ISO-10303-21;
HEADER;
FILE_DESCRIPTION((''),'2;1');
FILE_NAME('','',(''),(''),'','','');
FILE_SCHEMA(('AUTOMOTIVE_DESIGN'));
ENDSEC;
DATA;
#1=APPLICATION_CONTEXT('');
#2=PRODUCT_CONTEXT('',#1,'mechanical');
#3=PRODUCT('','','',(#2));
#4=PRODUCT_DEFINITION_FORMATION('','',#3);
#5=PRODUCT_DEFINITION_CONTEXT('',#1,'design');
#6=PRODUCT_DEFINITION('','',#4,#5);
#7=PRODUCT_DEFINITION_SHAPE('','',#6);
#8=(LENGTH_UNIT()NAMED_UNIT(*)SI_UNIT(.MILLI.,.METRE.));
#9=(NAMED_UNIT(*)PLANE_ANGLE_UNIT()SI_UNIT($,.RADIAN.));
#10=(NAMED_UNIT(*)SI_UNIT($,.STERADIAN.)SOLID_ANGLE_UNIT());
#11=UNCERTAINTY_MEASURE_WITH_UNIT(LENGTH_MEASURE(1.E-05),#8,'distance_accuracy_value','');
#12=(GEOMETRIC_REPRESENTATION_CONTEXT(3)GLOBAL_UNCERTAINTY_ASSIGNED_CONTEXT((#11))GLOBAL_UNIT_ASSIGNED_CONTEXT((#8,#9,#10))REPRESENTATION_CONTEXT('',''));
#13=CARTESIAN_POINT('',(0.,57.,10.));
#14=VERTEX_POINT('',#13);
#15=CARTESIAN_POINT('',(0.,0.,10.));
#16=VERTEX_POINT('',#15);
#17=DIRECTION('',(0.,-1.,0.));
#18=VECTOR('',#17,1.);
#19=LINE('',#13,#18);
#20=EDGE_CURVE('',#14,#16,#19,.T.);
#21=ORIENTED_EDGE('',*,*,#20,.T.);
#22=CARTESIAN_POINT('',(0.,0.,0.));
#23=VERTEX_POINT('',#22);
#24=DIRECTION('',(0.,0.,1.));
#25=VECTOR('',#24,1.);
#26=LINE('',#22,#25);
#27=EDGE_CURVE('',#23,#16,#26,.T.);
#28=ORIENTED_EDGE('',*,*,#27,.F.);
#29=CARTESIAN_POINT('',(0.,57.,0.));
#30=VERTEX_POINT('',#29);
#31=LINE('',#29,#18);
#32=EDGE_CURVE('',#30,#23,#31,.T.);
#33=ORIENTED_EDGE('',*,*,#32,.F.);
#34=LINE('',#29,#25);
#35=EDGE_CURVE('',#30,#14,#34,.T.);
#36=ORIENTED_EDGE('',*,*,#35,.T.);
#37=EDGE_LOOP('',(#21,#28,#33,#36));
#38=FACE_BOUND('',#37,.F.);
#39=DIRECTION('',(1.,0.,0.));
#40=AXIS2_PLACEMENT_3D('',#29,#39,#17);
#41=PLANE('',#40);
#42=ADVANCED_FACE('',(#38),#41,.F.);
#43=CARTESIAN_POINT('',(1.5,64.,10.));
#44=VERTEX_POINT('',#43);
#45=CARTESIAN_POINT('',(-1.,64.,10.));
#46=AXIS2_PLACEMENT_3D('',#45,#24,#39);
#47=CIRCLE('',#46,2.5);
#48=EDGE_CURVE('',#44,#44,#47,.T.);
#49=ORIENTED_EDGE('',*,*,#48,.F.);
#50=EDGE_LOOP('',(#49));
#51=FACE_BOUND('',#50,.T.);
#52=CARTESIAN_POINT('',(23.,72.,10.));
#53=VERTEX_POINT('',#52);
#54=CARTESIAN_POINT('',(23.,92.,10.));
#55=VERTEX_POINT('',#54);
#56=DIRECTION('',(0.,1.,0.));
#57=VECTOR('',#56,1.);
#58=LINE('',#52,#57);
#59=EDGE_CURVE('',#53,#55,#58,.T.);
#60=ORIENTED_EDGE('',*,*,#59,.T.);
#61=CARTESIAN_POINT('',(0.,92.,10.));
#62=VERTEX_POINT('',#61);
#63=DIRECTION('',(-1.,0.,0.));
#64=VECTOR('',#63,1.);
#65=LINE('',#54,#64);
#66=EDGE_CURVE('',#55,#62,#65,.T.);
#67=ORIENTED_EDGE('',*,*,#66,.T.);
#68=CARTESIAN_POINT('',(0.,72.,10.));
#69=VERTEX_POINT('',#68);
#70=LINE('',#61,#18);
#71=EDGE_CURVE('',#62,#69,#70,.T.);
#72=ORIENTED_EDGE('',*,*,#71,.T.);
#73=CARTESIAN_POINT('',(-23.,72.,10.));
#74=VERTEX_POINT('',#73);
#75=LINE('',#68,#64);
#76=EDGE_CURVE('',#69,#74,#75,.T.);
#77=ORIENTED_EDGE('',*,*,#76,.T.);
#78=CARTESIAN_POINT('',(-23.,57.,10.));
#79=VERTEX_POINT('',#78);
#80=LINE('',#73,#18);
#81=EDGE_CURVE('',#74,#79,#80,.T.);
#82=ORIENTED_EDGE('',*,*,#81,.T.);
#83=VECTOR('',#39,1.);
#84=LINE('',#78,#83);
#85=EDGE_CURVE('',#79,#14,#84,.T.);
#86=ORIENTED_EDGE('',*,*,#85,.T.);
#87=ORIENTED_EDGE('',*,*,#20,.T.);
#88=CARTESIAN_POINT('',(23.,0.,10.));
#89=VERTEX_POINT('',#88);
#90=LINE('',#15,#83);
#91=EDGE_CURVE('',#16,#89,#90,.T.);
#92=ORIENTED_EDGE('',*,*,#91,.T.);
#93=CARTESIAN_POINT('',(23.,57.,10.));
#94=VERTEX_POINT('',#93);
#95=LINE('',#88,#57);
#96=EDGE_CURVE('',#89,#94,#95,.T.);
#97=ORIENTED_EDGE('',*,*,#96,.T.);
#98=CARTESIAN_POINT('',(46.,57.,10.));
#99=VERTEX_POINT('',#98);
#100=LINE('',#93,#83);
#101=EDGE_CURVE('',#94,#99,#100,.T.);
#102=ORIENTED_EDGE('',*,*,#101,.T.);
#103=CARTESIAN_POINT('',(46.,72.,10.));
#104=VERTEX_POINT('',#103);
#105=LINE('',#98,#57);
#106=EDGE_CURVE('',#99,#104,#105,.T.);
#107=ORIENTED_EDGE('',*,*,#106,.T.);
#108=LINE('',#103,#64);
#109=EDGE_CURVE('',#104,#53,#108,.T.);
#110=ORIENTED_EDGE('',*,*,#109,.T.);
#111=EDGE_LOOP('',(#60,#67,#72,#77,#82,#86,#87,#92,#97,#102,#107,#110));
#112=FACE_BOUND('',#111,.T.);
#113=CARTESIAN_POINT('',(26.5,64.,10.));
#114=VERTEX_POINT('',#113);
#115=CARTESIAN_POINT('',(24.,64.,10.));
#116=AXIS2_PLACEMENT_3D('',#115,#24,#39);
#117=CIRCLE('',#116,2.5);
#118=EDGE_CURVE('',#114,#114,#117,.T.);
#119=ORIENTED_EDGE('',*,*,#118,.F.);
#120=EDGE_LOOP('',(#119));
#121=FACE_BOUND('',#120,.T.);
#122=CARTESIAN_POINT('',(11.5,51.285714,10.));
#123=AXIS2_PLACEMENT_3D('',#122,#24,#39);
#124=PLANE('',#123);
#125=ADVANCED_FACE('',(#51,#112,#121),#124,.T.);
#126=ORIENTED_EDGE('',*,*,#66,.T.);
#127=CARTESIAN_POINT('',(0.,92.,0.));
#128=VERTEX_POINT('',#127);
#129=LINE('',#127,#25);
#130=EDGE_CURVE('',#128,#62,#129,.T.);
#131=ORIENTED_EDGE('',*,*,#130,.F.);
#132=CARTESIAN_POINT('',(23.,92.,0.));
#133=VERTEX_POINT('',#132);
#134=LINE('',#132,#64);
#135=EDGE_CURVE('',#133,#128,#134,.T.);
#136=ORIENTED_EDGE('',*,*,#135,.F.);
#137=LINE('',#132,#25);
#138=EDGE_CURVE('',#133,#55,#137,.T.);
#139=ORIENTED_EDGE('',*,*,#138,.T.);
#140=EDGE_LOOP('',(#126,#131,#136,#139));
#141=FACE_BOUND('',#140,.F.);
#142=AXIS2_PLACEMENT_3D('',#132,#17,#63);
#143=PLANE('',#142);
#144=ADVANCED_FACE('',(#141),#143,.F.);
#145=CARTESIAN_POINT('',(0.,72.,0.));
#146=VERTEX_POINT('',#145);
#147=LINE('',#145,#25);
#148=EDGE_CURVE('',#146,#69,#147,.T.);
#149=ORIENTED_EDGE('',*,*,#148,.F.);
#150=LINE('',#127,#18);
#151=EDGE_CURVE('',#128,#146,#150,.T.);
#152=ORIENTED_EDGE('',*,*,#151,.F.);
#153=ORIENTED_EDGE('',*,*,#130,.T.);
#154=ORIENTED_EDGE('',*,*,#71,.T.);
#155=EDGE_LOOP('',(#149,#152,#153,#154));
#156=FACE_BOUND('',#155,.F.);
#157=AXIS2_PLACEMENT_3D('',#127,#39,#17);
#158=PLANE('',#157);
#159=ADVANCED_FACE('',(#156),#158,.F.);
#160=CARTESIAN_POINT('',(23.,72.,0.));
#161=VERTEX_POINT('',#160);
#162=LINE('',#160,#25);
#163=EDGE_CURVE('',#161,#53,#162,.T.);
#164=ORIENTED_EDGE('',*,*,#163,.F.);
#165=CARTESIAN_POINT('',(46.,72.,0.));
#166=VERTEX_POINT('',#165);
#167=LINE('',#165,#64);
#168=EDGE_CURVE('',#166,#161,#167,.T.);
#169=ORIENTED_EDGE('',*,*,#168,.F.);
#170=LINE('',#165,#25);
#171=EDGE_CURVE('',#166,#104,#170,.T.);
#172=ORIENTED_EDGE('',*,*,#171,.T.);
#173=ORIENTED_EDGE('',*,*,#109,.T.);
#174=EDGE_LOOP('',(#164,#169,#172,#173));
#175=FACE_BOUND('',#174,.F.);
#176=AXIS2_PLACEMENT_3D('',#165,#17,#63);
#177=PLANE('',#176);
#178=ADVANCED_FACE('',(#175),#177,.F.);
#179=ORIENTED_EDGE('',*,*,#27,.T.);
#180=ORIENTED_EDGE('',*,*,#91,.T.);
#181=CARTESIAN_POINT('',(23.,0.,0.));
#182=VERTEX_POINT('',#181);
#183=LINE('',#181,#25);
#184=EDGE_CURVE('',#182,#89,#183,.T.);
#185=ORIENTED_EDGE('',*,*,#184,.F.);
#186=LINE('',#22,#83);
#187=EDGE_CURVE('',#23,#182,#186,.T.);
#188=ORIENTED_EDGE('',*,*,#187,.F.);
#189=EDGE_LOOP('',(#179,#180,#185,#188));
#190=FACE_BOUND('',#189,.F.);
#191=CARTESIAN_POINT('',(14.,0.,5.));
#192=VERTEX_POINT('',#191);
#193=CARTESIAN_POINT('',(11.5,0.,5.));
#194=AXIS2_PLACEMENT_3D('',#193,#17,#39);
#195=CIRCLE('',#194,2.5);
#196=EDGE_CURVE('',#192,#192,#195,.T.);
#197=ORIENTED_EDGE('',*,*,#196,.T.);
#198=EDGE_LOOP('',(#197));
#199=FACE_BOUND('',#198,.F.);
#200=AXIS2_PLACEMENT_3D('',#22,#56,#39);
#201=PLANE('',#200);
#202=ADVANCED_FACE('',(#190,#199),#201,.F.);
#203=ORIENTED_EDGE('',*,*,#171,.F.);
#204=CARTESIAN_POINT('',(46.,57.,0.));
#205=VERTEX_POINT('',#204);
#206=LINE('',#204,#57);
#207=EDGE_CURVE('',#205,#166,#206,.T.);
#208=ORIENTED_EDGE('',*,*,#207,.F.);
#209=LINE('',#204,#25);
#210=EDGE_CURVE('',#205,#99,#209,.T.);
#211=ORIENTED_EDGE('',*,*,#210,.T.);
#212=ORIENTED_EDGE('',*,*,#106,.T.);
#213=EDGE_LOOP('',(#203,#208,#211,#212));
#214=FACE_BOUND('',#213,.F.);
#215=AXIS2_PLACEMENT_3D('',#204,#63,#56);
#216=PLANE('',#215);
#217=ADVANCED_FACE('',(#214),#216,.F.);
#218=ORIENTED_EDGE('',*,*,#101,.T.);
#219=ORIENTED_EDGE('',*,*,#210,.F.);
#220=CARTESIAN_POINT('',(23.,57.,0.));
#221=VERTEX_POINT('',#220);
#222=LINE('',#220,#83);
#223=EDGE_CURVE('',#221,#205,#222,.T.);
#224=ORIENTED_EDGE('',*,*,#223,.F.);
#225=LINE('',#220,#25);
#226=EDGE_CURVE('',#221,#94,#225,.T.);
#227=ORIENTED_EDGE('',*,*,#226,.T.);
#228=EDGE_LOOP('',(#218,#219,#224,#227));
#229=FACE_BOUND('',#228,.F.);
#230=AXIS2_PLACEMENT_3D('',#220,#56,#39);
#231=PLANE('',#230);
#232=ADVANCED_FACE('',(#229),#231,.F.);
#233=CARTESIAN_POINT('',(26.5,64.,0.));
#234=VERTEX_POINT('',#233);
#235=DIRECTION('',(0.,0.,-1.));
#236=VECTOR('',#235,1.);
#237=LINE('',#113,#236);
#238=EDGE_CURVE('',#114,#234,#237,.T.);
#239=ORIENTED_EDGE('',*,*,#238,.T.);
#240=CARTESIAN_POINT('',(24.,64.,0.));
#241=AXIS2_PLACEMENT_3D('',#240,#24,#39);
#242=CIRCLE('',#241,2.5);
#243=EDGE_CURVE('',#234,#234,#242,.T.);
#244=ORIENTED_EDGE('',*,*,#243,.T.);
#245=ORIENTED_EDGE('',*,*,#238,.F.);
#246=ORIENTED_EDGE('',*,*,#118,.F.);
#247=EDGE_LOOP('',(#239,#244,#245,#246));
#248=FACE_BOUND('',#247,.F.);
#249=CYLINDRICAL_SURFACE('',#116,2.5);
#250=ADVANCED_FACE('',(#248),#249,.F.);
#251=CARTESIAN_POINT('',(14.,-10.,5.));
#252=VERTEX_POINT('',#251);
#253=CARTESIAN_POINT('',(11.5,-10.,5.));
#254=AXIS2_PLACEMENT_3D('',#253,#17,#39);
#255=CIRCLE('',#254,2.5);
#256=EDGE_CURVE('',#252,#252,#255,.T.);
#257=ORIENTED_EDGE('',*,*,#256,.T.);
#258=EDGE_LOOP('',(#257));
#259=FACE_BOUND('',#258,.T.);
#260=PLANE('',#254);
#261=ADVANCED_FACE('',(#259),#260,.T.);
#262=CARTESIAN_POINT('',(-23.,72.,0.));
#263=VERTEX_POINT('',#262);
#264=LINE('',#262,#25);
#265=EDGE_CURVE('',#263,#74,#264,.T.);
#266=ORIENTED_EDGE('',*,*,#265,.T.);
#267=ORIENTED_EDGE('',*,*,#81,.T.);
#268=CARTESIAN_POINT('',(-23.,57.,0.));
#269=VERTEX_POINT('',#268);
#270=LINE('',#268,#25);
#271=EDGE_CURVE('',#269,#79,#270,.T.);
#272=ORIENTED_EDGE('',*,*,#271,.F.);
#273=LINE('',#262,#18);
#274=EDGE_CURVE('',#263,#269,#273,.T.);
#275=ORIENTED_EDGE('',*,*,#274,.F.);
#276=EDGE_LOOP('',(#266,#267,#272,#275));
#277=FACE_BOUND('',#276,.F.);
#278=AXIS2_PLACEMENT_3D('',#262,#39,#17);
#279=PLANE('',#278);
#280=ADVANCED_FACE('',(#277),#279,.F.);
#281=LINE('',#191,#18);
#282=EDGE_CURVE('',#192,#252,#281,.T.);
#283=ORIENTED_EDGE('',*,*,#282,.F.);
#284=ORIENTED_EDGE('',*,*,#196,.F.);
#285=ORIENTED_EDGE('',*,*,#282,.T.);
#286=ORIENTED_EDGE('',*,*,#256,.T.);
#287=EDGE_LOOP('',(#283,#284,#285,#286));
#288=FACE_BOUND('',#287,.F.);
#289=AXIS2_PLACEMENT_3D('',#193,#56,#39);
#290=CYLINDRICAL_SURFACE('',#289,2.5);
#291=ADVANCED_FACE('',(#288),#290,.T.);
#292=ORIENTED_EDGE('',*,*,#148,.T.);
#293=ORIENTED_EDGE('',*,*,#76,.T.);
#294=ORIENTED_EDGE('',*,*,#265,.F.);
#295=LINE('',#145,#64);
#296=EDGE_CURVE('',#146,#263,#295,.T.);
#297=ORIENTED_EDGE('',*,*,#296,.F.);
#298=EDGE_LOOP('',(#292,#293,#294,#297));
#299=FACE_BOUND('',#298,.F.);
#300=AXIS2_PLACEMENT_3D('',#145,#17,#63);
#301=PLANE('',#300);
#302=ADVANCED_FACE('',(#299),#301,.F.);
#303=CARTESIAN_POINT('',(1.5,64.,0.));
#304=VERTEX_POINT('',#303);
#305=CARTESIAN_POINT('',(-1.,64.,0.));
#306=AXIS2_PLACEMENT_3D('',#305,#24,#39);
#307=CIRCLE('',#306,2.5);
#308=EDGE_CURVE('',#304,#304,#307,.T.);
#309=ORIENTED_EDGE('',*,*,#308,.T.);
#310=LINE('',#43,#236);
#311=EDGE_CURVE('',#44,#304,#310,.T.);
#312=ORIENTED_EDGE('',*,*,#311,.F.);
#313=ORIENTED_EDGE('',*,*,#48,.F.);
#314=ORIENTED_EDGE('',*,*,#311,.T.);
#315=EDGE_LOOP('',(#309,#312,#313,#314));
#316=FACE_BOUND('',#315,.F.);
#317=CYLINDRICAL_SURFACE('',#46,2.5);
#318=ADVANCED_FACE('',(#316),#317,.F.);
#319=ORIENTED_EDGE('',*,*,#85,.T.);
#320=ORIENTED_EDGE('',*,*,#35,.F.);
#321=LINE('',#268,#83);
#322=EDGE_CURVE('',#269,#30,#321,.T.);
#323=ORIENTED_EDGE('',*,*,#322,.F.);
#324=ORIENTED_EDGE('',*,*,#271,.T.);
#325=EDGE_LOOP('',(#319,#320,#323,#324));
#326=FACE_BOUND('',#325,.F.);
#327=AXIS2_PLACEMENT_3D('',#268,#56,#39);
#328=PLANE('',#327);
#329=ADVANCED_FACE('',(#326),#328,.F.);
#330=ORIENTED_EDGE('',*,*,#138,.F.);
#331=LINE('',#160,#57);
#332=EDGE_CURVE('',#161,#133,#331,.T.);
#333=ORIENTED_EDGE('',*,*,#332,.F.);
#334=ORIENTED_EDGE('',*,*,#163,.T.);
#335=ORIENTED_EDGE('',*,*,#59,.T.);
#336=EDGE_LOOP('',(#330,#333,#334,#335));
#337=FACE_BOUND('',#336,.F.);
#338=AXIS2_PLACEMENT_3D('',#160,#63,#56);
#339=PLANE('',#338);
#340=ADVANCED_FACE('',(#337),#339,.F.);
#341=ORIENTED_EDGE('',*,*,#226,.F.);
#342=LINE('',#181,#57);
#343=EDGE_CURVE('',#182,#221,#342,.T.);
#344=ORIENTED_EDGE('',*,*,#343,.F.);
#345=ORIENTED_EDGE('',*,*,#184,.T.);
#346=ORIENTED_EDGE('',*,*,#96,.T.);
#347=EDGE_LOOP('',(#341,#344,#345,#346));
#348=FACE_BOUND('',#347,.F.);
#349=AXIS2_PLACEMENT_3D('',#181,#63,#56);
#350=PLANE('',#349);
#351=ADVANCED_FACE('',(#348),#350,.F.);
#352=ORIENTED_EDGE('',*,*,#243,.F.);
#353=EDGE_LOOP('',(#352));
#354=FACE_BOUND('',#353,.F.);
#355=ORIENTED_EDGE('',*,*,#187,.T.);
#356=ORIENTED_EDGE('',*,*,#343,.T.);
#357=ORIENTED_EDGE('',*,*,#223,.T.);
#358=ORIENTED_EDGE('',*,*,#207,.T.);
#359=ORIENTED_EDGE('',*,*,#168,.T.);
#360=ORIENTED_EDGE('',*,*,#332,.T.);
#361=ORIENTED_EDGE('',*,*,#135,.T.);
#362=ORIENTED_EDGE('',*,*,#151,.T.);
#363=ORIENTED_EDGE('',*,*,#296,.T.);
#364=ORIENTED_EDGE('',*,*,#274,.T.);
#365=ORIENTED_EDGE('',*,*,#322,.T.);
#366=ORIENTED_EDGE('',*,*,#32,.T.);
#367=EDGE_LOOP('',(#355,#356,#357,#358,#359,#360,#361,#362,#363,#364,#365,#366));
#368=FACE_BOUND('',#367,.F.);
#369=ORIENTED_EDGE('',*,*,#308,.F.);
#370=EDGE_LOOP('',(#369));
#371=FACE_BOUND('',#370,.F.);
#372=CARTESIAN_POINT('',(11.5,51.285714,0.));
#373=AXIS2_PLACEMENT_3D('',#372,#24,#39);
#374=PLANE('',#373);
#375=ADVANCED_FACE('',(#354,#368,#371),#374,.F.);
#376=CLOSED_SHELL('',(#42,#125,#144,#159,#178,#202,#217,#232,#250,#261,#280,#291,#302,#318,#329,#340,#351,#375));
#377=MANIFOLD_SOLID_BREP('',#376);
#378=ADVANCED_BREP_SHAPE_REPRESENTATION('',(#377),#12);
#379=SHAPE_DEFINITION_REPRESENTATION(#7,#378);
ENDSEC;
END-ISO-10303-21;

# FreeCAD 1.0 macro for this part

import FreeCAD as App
import Part
import Sketcher
from FreeCAD import Vector

doc = App.newDocument("Part")
params = doc.addObject("Spreadsheet::Sheet", "Params")
for row, (alias, value) in enumerate([
    ("sketch1_width", "23 mm"),
    ("sketch1_height", "57 mm"),
    ("sketch1_height2", "15 mm"),
    ("sketch1_height3", "20 mm"),
    ("pad1_length", "10 mm"),
    ("sketch2_diameter", "5 mm"),
    ("pad2_length", "10 mm"),
    ("sketch3_diameter", "5 mm"),
    ("pocket1_length", "10 mm"),
], start=1):
    params.set(f"A{row}", alias)
    params.set(f"B{row}", "=" + value)
    params.setAlias(f"B{row}", alias)

body = doc.addObject("PartDesign::Body", "Body")

# Sketch on XY plane
sketch1 = body.newObject("Sketcher::SketchObject", "Sketch")
sketch1.AttachmentSupport = (doc.getObject("XY_Plane"), [""])
sketch1.MapMode = "FlatFace"
sketch1.addGeometry(Part.LineSegment(Vector(0, 0, 0), Vector(23, 0, 0)), False)
sketch1.addGeometry(Part.LineSegment(Vector(23, 0, 0), Vector(23, 57, 0)), False)
sketch1.addGeometry(Part.LineSegment(Vector(23, 57, 0), Vector(46, 57, 0)), False)
sketch1.addGeometry(Part.LineSegment(Vector(46, 57, 0), Vector(46, 72, 0)), False)
sketch1.addGeometry(Part.LineSegment(Vector(46, 72, 0), Vector(23, 72, 0)), False)
sketch1.addGeometry(Part.LineSegment(Vector(23, 72, 0), Vector(23, 92, 0)), False)
sketch1.addGeometry(Part.LineSegment(Vector(23, 92, 0), Vector(0, 92, 0)), False)
sketch1.addGeometry(Part.LineSegment(Vector(0, 92, 0), Vector(0, 72, 0)), False)
sketch1.addGeometry(Part.LineSegment(Vector(0, 72, 0), Vector(-23, 72, 0)), False)
sketch1.addGeometry(Part.LineSegment(Vector(-23, 72, 0), Vector(-23, 57, 0)), False)
sketch1.addGeometry(Part.LineSegment(Vector(-23, 57, 0), Vector(0, 57, 0)), False)
sketch1.addGeometry(Part.LineSegment(Vector(0, 57, 0), Vector(0, 0, 0)), False)
sketch1.addConstraint(Sketcher.Constraint("Coincident", 0, 2, 1, 1))
sketch1.addConstraint(Sketcher.Constraint("Coincident", 1, 2, 2, 1))
sketch1.addConstraint(Sketcher.Constraint("Coincident", 2, 2, 3, 1))
sketch1.addConstraint(Sketcher.Constraint("Coincident", 3, 2, 4, 1))
sketch1.addConstraint(Sketcher.Constraint("Coincident", 4, 2, 5, 1))
sketch1.addConstraint(Sketcher.Constraint("Coincident", 5, 2, 6, 1))
sketch1.addConstraint(Sketcher.Constraint("Coincident", 6, 2, 7, 1))
sketch1.addConstraint(Sketcher.Constraint("Coincident", 7, 2, 8, 1))
sketch1.addConstraint(Sketcher.Constraint("Coincident", 8, 2, 9, 1))
sketch1.addConstraint(Sketcher.Constraint("Coincident", 9, 2, 10, 1))
sketch1.addConstraint(Sketcher.Constraint("Coincident", 10, 2, 11, 1))
sketch1.addConstraint(Sketcher.Constraint("Coincident", 11, 2, 0, 1))
sketch1.addConstraint(Sketcher.Constraint("Horizontal", 0))
sketch1.addConstraint(Sketcher.Constraint("Vertical", 1))
sketch1.addConstraint(Sketcher.Constraint("Horizontal", 2))
sketch1.addConstraint(Sketcher.Constraint("Vertical", 3))
sketch1.addConstraint(Sketcher.Constraint("Horizontal", 4))
sketch1.addConstraint(Sketcher.Constraint("Vertical", 5))
sketch1.addConstraint(Sketcher.Constraint("Horizontal", 6))
sketch1.addConstraint(Sketcher.Constraint("Vertical", 7))
sketch1.addConstraint(Sketcher.Constraint("Horizontal", 8))
sketch1.addConstraint(Sketcher.Constraint("Vertical", 9))
sketch1.addConstraint(Sketcher.Constraint("Horizontal", 10))
sketch1.addConstraint(Sketcher.Constraint("Vertical", 11))
sketch1.addConstraint(Sketcher.Constraint("Coincident", 11, 2, -1, 1))
sketch1.addConstraint(Sketcher.Constraint("Symmetric", 4, 2, 8, 2, -2))
sketch1.addConstraint(Sketcher.Constraint("Symmetric", 1, 2, 9, 2, -2))
sketch1.addConstraint(Sketcher.Constraint("PointOnObject", 6, 2, -2))
sketch1.addConstraint(Sketcher.Constraint("Equal", 0, 2))
sketch1.addConstraint(Sketcher.Constraint("DistanceX", 0, 1, 0, 2, 23.0))
sketch1.addConstraint(Sketcher.Constraint("DistanceY", 1, 1, 1, 2, 57.0))
sketch1.addConstraint(Sketcher.Constraint("DistanceY", 3, 1, 3, 2, 15.0))
sketch1.addConstraint(Sketcher.Constraint("DistanceY", 5, 1, 5, 2, 20.0))
sketch1.setExpression("Constraints[29]", "Params.sketch1_width")
sketch1.setExpression("Constraints[30]", "Params.sketch1_height")
sketch1.setExpression("Constraints[31]", "Params.sketch1_height2")
sketch1.setExpression("Constraints[32]", "Params.sketch1_height3")
pad1 = body.newObject("PartDesign::Pad", "Pad")
pad1.Profile = sketch1
pad1.setExpression("Length", "Params.pad1_length")

# Sketch on XZ plane
sketch2 = body.newObject("Sketcher::SketchObject", "Sketch001")
sketch2.AttachmentSupport = (doc.getObject("XZ_Plane"), [""])
sketch2.MapMode = "FlatFace"
sketch2.addGeometry(Part.Circle(Vector(11.5, 5, 0), Vector(0, 0, 1), 2.5), False)
sketch2.addConstraint(Sketcher.Constraint("Diameter", 0, 5.0))
sketch2.addConstraint(Sketcher.Constraint("DistanceY", -1, 1, 0, 3, 5.0))
sketch2.addConstraint(Sketcher.Constraint("DistanceX", -1, 1, 0, 3, 11.5))
sketch2.setExpression("Constraints[0]", "Params.sketch2_diameter")
pad2 = body.newObject("PartDesign::Pad", "Pad001")
pad2.Profile = sketch2
pad2.setExpression("Length", "Params.pad2_length")

# Sketch on XY plane
sketch3 = body.newObject("Sketcher::SketchObject", "Sketch002")
sketch3.AttachmentSupport = (doc.getObject("XY_Plane"), [""])
sketch3.MapMode = "FlatFace"
sketch3.AttachmentOffset = App.Placement(Vector(0, 0, 10), App.Rotation())
sketch3.addGeometry(Part.Circle(Vector(24, 64, 0), Vector(0, 0, 1), 2.5), False)
sketch3.addGeometry(Part.Circle(Vector(-1, 64, 0), Vector(0, 0, 1), 2.5), False)
sketch3.addConstraint(Sketcher.Constraint("Equal", 0, 1))
sketch3.addConstraint(Sketcher.Constraint("Horizontal", 0, 3, 1, 3))
sketch3.addConstraint(Sketcher.Constraint("Diameter", 0, 5.0))
sketch3.addConstraint(Sketcher.Constraint("DistanceX", -1, 1, 0, 3, 24.0))
sketch3.addConstraint(Sketcher.Constraint("DistanceY", -1, 1, 0, 3, 64.0))
sketch3.addConstraint(Sketcher.Constraint("DistanceX", 1, 3, -1, 1, 1.0))
sketch3.setExpression("Constraints[2]", "Params.sketch3_diameter")
pocket1 = body.newObject("PartDesign::Pocket", "Pocket")
pocket1.Profile = sketch3
pocket1.setExpression("Length", "Params.pocket1_length")

doc.recompute()
